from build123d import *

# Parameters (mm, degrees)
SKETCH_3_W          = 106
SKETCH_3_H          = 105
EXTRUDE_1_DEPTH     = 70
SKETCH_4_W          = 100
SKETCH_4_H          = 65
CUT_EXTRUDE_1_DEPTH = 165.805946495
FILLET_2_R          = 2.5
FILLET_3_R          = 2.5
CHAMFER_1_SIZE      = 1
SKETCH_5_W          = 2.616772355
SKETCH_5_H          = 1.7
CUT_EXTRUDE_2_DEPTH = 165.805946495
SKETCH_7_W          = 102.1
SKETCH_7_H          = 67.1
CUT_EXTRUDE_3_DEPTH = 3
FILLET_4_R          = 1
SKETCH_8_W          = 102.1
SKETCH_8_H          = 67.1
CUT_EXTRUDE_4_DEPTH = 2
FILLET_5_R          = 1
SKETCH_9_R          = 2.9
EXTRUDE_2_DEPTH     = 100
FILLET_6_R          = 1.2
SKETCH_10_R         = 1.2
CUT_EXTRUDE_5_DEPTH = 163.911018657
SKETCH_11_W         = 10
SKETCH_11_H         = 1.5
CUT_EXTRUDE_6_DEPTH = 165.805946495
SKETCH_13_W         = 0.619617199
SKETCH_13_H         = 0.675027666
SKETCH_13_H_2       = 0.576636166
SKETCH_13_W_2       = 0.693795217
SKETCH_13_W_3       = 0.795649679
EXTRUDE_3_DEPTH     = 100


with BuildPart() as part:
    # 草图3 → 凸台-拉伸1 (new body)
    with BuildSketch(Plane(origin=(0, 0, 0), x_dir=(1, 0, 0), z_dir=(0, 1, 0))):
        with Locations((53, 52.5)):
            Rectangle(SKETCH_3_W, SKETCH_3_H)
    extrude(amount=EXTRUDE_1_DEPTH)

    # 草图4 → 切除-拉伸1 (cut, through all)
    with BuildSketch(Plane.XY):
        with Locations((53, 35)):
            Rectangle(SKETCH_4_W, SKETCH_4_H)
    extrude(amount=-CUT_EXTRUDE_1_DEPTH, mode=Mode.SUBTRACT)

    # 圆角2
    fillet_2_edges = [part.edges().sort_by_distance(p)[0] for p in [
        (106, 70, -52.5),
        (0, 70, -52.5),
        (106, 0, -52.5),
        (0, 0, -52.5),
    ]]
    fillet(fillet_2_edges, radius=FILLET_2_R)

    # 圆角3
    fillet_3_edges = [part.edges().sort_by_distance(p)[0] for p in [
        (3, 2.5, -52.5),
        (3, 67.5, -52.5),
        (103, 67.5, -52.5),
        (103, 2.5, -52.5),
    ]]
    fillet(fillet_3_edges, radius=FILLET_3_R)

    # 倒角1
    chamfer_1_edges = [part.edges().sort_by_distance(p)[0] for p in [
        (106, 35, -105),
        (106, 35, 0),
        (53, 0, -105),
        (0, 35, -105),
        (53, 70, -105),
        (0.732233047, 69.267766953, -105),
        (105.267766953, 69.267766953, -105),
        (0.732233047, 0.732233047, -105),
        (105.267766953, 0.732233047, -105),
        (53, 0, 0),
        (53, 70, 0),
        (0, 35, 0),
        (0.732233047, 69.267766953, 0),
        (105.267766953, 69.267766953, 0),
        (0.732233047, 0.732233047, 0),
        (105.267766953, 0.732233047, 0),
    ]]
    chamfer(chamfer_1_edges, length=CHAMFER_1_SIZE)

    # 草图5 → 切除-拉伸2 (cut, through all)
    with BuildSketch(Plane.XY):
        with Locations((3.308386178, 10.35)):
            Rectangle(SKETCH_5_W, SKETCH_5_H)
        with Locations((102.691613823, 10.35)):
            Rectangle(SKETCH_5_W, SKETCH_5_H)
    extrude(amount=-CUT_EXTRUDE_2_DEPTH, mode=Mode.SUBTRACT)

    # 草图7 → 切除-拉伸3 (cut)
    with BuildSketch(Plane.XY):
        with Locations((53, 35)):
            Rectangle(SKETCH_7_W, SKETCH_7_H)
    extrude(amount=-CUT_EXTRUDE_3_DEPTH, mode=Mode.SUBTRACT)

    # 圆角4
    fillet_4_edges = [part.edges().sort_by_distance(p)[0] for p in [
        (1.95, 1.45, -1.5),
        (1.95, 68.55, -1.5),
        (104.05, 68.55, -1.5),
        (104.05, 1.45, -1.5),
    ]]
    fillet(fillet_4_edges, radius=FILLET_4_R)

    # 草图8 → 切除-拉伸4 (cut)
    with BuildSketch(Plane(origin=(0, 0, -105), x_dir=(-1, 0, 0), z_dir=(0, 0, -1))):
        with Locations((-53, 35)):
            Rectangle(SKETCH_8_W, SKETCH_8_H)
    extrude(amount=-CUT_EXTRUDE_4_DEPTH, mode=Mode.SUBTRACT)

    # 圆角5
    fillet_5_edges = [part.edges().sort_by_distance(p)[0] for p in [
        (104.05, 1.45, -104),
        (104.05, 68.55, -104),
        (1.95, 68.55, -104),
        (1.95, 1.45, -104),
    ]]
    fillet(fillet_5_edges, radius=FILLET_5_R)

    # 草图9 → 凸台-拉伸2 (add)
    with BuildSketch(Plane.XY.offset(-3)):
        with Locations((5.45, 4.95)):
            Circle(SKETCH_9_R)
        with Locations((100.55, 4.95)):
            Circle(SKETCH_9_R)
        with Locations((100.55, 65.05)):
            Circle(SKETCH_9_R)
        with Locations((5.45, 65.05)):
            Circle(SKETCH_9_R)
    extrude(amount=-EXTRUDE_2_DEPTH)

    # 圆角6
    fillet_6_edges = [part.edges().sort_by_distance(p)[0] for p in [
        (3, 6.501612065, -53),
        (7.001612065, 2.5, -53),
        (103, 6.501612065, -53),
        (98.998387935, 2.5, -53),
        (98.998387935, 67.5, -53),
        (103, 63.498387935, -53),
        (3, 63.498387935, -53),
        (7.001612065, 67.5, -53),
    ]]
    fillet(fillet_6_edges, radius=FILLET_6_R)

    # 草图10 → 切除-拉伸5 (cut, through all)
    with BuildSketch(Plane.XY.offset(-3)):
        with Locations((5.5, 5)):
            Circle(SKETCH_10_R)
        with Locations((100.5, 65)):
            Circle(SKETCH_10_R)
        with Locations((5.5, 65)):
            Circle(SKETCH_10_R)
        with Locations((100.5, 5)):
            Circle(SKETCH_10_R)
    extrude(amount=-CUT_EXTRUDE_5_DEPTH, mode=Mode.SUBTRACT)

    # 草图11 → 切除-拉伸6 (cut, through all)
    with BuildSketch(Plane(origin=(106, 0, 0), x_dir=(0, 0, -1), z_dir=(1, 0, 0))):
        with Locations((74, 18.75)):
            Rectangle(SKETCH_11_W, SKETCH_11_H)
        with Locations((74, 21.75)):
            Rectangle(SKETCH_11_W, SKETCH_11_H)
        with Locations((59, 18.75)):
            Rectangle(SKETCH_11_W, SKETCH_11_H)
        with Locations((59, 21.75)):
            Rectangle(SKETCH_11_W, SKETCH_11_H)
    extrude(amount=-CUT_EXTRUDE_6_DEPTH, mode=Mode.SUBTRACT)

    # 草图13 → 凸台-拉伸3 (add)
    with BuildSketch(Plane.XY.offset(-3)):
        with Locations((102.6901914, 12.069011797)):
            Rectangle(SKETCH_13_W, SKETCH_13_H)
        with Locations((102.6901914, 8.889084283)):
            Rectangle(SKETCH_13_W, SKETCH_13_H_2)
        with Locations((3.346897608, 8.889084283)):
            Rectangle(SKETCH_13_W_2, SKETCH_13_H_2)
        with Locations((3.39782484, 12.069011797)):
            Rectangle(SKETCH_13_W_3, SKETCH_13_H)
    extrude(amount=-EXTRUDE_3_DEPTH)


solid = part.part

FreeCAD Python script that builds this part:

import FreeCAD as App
import Part
import Sketcher

V = App.Vector


def edges_at(feature, points):
    """Names of the edges that pass closest to the given points."""
    edges = feature.Shape.Edges
    near = lambda p: min(range(len(edges)), key=lambda i: edges[i].distToShape(Part.Vertex(*p))[0])
    return sorted({f"Edge{near(p) + 1}" for p in points})


def add_polygon(sketch, points):
    """Adds a closed chain of lines whose ends are joined by coincident constraints."""
    first, n = sketch.GeometryCount, len(points)
    for a, b in zip(points, points[1:] + points[:1]):
        sketch.addGeometry(Part.LineSegment(App.Vector(*a, 0), App.Vector(*b, 0)), False)
    for i in range(n):
        sketch.addConstraint(Sketcher.Constraint("Coincident", first + i, 2, first + (i + 1) % n, 1))

doc = App.newDocument("Part")
body = doc.addObject("PartDesign::Body", "Body")

sketch1 = doc.addObject("Sketcher::SketchObject", "Sketch")
body.addObject(sketch1)
sketch1.AttachmentSupport = (doc.XZ_Plane, [""])
sketch1.MapMode = "FlatFace"
add_polygon(sketch1, [(0, -105), (0, 0), (106, 0), (106, -105)])
sketch1.addConstraint(Sketcher.Constraint("Vertical", 0))
sketch1.addConstraint(Sketcher.Constraint("Horizontal", 1))
sketch1.addConstraint(Sketcher.Constraint("Vertical", 2))
sketch1.addConstraint(Sketcher.Constraint("Horizontal", 3))
sketch1.addConstraint(Sketcher.Constraint("Coincident", 0, 2, -1, 1))
sketch1.addConstraint(Sketcher.Constraint("DistanceX", 1, 1, 1, 2, 106.0))
sketch1.addConstraint(Sketcher.Constraint("DistanceY", 0, 1, 0, 2, 105.0))
pad1 = doc.addObject("PartDesign::Pad", "Pad")
body.addObject(pad1)
pad1.Profile = sketch1
pad1.Length = 70
pad1.Reversed = True

sketch2 = doc.addObject("Sketcher::SketchObject", "Sketch001")
body.addObject(sketch2)
sketch2.AttachmentSupport = (doc.XY_Plane, [""])
sketch2.MapMode = "FlatFace"
add_polygon(sketch2, [(3, 68), (3, 2), (103, 2), (103, 68)])
sketch2.addConstraint(Sketcher.Constraint("Vertical", 0))
sketch2.addConstraint(Sketcher.Constraint("Horizontal", 1))
sketch2.addConstraint(Sketcher.Constraint("Vertical", 2))
sketch2.addConstraint(Sketcher.Constraint("Horizontal", 3))
sketch2.addConstraint(Sketcher.Constraint("DistanceX", 1, 1, 1, 2, 100.0))
sketch2.addConstraint(Sketcher.Constraint("DistanceY", 0, 2, 0, 1, 65.0))
sketch2.addConstraint(Sketcher.Constraint("DistanceX", -1, 1, 0, 2, 3.0))
sketch2.addConstraint(Sketcher.Constraint("DistanceY", -1, 1, 0, 2, 2.5))
pocket1 = doc.addObject("PartDesign::Pocket", "Pocket")
body.addObject(pocket1)
pocket1.Profile = sketch2
pocket1.Type = "ThroughAll"
doc.recompute()

fillet = doc.addObject("PartDesign::Fillet", "Fillet")
body.addObject(fillet)
fillet.Base = (pocket1, edges_at(pocket1, [
    (106, 70, -52.5),
    (0, 70, -52.5),
    (106, 0, -52.5),
    (0, 0, -52.5),
]))
fillet.Radius = 2.5
doc.recompute()

fillet2 = doc.addObject("PartDesign::Fillet", "Fillet001")
body.addObject(fillet2)
fillet2.Base = (fillet, edges_at(fillet, [
    (3, 2.5, -52.5),
    (3, 67.5, -52.5),
    (103, 67.5, -52.5),
    (103, 2.5, -52.5),
]))
fillet2.Radius = 2.5
doc.recompute()

chamfer = doc.addObject("PartDesign::Chamfer", "Chamfer")
body.addObject(chamfer)
chamfer.Base = (fillet2, edges_at(fillet2, [
    (106, 35, -105),
    (106, 35, 0),
    (53, 0, -105),
    (0, 35, -105),
    (53, 70, -105),
    (0.732, 69.268, -105),
    (105.268, 69.268, -105),
    (0.732, 0.732, -105),
    (105.268, 0.732, -105),
    (53, 0, 0),
    (53, 70, 0),
    (0, 35, 0),
    (0.732, 69.268, 0),
    (105.268, 69.268, 0),
    (0.732, 0.732, 0),
    (105.268, 0.732, 0),
]))
chamfer.Size = 1

sketch3 = doc.addObject("Sketcher::SketchObject", "Sketch002")
body.addObject(sketch3)
sketch3.AttachmentSupport = (doc.XY_Plane, [""])
sketch3.MapMode = "FlatFace"
add_polygon(sketch3, [(2, 11.2), (2, 9.5), (4.6, 9.5), (4.6, 11.2)])
add_polygon(sketch3, [(101.4, 11.2), (101.4, 9.5), (104, 9.5), (104, 11.2)])
sketch3.addConstraint(Sketcher.Constraint("Vertical", 0))
sketch3.addConstraint(Sketcher.Constraint("Horizontal", 1))
sketch3.addConstraint(Sketcher.Constraint("Vertical", 2))
sketch3.addConstraint(Sketcher.Constraint("Horizontal", 3))
sketch3.addConstraint(Sketcher.Constraint("Vertical", 4))
sketch3.addConstraint(Sketcher.Constraint("Horizontal", 5))
sketch3.addConstraint(Sketcher.Constraint("Vertical", 6))
sketch3.addConstraint(Sketcher.Constraint("Horizontal", 7))
sketch3.addConstraint(Sketcher.Constraint("Horizontal", 1, 2, 4, 2))
sketch3.addConstraint(Sketcher.Constraint("Horizontal", 3, 2, 6, 2))
sketch3.addConstraint(Sketcher.Constraint("Equal", 3, 5))
sketch3.addConstraint(Sketcher.Constraint("DistanceY", 0, 2, 0, 1, 1.7))
sketch3.addConstraint(Sketcher.Constraint("DistanceX", -1, 1, 0, 2, 2.0))
sketch3.addConstraint(Sketcher.Constraint("DistanceX", -1, 1, 5, 2, 104.0))
sketch3.addConstraint(Sketcher.Constraint("DistanceY", -1, 1, 0, 2, 9.5))
sketch3.addConstraint(Sketcher.Constraint("DistanceX", 1, 1, 1, 2, 2.616772))
pocket2 = doc.addObject("PartDesign::Pocket", "Pocket001")
body.addObject(pocket2)
pocket2.Profile = sketch3
pocket2.Type = "ThroughAll"

sketch4 = doc.addObject("Sketcher::SketchObject", "Sketch003")
body.addObject(sketch4)
sketch4.AttachmentSupport = (doc.XY_Plane, [""])
sketch4.MapMode = "FlatFace"
add_polygon(sketch4, [(2, 69), (2, 1), (104, 1), (104, 69)])
sketch4.addConstraint(Sketcher.Constraint("Vertical", 0))
sketch4.addConstraint(Sketcher.Constraint("Horizontal", 1))
sketch4.addConstraint(Sketcher.Constraint("Vertical", 2))
sketch4.addConstraint(Sketcher.Constraint("Horizontal", 3))
sketch4.addConstraint(Sketcher.Constraint("DistanceX", 1, 1, 1, 2, 102.1))
sketch4.addConstraint(Sketcher.Constraint("DistanceY", 0, 2, 0, 1, 67.1))
sketch4.addConstraint(Sketcher.Constraint("DistanceX", -1, 1, 0, 2, 1.95))
sketch4.addConstraint(Sketcher.Constraint("DistanceY", -1, 1, 0, 2, 1.45))
pocket3 = doc.addObject("PartDesign::Pocket", "Pocket002")
body.addObject(pocket3)
pocket3.Profile = sketch4
pocket3.Length = 3
doc.recompute()

fillet3 = doc.addObject("PartDesign::Fillet", "Fillet002")
body.addObject(fillet3)
fillet3.Base = (pocket3, edges_at(pocket3, [
    (1.95, 1.45, -1.5),
    (1.95, 68.55, -1.5),
    (104.05, 68.55, -1.5),
    (104.05, 1.45, -1.5),
]))
fillet3.Radius = 1

sketch5 = doc.addObject("Sketcher::SketchObject", "Sketch004")
body.addObject(sketch5)
sketch5.AttachmentSupport = (doc.XY_Plane, [""])
sketch5.MapMode = "FlatFace"
sketch5.AttachmentOffset = App.Placement(V(0, 0, -105), App.Rotation())
add_polygon(sketch5, [(104, 69), (104, 1), (2, 1), (2, 69)])
sketch5.addConstraint(Sketcher.Constraint("Vertical", 0))
sketch5.addConstraint(Sketcher.Constraint("Horizontal", 1))
sketch5.addConstraint(Sketcher.Constraint("Vertical", 2))
sketch5.addConstraint(Sketcher.Constraint("Horizontal", 3))
sketch5.addConstraint(Sketcher.Constraint("DistanceX", 1, 2, 1, 1, 102.1))
sketch5.addConstraint(Sketcher.Constraint("DistanceY", 0, 2, 0, 1, 67.1))
sketch5.addConstraint(Sketcher.Constraint("DistanceX", -1, 1, 0, 2, 104.05))
sketch5.addConstraint(Sketcher.Constraint("DistanceY", -1, 1, 0, 2, 1.45))
pocket4 = doc.addObject("PartDesign::Pocket", "Pocket003")
body.addObject(pocket4)
pocket4.Profile = sketch5
pocket4.Length = 2
pocket4.Reversed = True
doc.recompute()

fillet4 = doc.addObject("PartDesign::Fillet", "Fillet003")
body.addObject(fillet4)
fillet4.Base = (pocket4, edges_at(pocket4, [
    (104.05, 1.45, -104),
    (104.05, 68.55, -104),
    (1.95, 68.55, -104),
    (1.95, 1.45, -104),
]))
fillet4.Radius = 1

sketch6 = doc.addObject("Sketcher::SketchObject", "Sketch005")
body.addObject(sketch6)
sketch6.AttachmentSupport = (doc.XY_Plane, [""])
sketch6.MapMode = "FlatFace"
sketch6.AttachmentOffset = App.Placement(V(0, 0, -3), App.Rotation())
sketch6.addGeometry(Part.Circle(V(5.5, 5, 0), V(0, 0, 1), 2.9), False)
sketch6.addGeometry(Part.Circle(V(100.5, 5, 0), V(0, 0, 1), 2.9), False)
sketch6.addGeometry(Part.Circle(V(100.5, 65, 0), V(0, 0, 1), 2.9), False)
sketch6.addGeometry(Part.Circle(V(5.5, 65, 0), V(0, 0, 1), 2.9), False)
sketch6.addConstraint(Sketcher.Constraint("Equal", 0, 1))
sketch6.addConstraint(Sketcher.Constraint("Equal", 1, 2))
sketch6.addConstraint(Sketcher.Constraint("Equal", 2, 3))
sketch6.addConstraint(Sketcher.Constraint("Horizontal", 0, 3, 1, 3))
sketch6.addConstraint(Sketcher.Constraint("Horizontal", 2, 3, 3, 3))
sketch6.addConstraint(Sketcher.Constraint("Vertical", 1, 3, 2, 3))
sketch6.addConstraint(Sketcher.Constraint("Vertical", 0, 3, 3, 3))
sketch6.addConstraint(Sketcher.Constraint("Diameter", 0, 5.8))
sketch6.addConstraint(Sketcher.Constraint("DistanceX", 0, 3, 1, 3, 95.1))
sketch6.addConstraint(Sketcher.Constraint("DistanceY", 1, 3, 2, 3, 60.1))
sketch6.addConstraint(Sketcher.Constraint("DistanceX", -1, 1, 0, 3, 5.45))
sketch6.addConstraint(Sketcher.Constraint("DistanceY", -1, 1, 0, 3, 4.95))
pad2 = doc.addObject("PartDesign::Pad", "Pad001")
body.addObject(pad2)
pad2.Profile = sketch6
pad2.Length = 100
pad2.Reversed = True
doc.recompute()

fillet5 = doc.addObject("PartDesign::Fillet", "Fillet004")
body.addObject(fillet5)
fillet5.Base = (pad2, edges_at(pad2, [
    (3, 6.502, -53),
    (7.002, 2.5, -53),
    (103, 6.502, -53),
    (98.998, 2.5, -53),
    (98.998, 67.5, -53),
    (103, 63.498, -53),
    (3, 63.498, -53),
    (7.002, 67.5, -53),
]))
fillet5.Radius = 1.2

sketch7 = doc.addObject("Sketcher::SketchObject", "Sketch006")
body.addObject(sketch7)
sketch7.AttachmentSupport = (doc.XY_Plane, [""])
sketch7.MapMode = "FlatFace"
sketch7.AttachmentOffset = App.Placement(V(0, 0, -3), App.Rotation())
sketch7.addGeometry(Part.Circle(V(5.5, 5, 0), V(0, 0, 1), 1.2), False)
sketch7.addGeometry(Part.Circle(V(100.5, 65, 0), V(0, 0, 1), 1.2), False)
sketch7.addGeometry(Part.Circle(V(5.5, 65, 0), V(0, 0, 1), 1.2), False)
sketch7.addGeometry(Part.Circle(V(100.5, 5, 0), V(0, 0, 1), 1.2), False)
sketch7.addConstraint(Sketcher.Constraint("Equal", 0, 1))
sketch7.addConstraint(Sketcher.Constraint("Equal", 1, 2))
sketch7.addConstraint(Sketcher.Constraint("Equal", 2, 3))
sketch7.addConstraint(Sketcher.Constraint("Horizontal", 1, 3, 2, 3))
sketch7.addConstraint(Sketcher.Constraint("Horizontal", 0, 3, 3, 3))
sketch7.addConstraint(Sketcher.Constraint("Vertical", 0, 3, 2, 3))
sketch7.addConstraint(Sketcher.Constraint("Vertical", 1, 3, 3, 3))
sketch7.addConstraint(Sketcher.Constraint("Diameter", 0, 2.4))
sketch7.addConstraint(Sketcher.Constraint("DistanceY", -1, 1, 0, 3, 5.0))
sketch7.addConstraint(Sketcher.Constraint("DistanceY", -1, 1, 1, 3, 65.0))
sketch7.addConstraint(Sketcher.Constraint("DistanceX", 0, 3, 1, 3, 95.0))
sketch7.addConstraint(Sketcher.Constraint("DistanceX", -1, 1, 0, 3, 5.5))
pocket5 = doc.addObject("PartDesign::Pocket", "Pocket004")
body.addObject(pocket5)
pocket5.Profile = sketch7
pocket5.Type = "ThroughAll"

sketch8 = doc.addObject("Sketcher::SketchObject", "Sketch007")
body.addObject(sketch8)
sketch8.AttachmentSupport = (doc.YZ_Plane, [""])
sketch8.MapMode = "FlatFace"
sketch8.AttachmentOffset = App.Placement(V(0, 0, 106), App.Rotation())
add_polygon(sketch8, [(19.5, -69), (18, -69), (18, -79), (19.5, -79)])
add_polygon(sketch8, [(22.5, -69), (21, -69), (21, -79), (22.5, -79)])
add_polygon(sketch8, [(19.5, -54), (18, -54), (18, -64), (19.5, -64)])
add_polygon(sketch8, [(22.5, -54), (21, -54), (21, -64), (22.5, -64)])
sketch8.addConstraint(Sketcher.Constraint("Horizontal", 0))
sketch8.addConstraint(Sketcher.Constraint("Vertical", 1))
sketch8.addConstraint(Sketcher.Constraint("Horizontal", 2))
sketch8.addConstraint(Sketcher.Constraint("Vertical", 3))
sketch8.addConstraint(Sketcher.Constraint("Horizontal", 4))
sketch8.addConstraint(Sketcher.Constraint("Vertical", 5))
sketch8.addConstraint(Sketcher.Constraint("Horizontal", 6))
sketch8.addConstraint(Sketcher.Constraint("Vertical", 7))
sketch8.addConstraint(Sketcher.Constraint("Horizontal", 8))
sketch8.addConstraint(Sketcher.Constraint("Vertical", 9))
sketch8.addConstraint(Sketcher.Constraint("Horizontal", 10))
sketch8.addConstraint(Sketcher.Constraint("Vertical", 11))
sketch8.addConstraint(Sketcher.Constraint("Horizontal", 12))
sketch8.addConstraint(Sketcher.Constraint("Vertical", 13))
sketch8.addConstraint(Sketcher.Constraint("Horizontal", 14))
sketch8.addConstraint(Sketcher.Constraint("Vertical", 15))
sketch8.addConstraint(Sketcher.Constraint("Horizontal", 3, 2, 4, 2))
sketch8.addConstraint(Sketcher.Constraint("Horizontal", 2, 2, 5, 2))
sketch8.addConstraint(Sketcher.Constraint("Horizontal", 11, 2, 12, 2))
sketch8.addConstraint(Sketcher.Constraint("Horizontal", 10, 2, 13, 2))
sketch8.addConstraint(Sketcher.Constraint("Vertical", 1, 2, 8, 2))
sketch8.addConstraint(Sketcher.Constraint("Vertical", 3, 2, 10, 2))
sketch8.addConstraint(Sketcher.Constraint("Vertical", 5, 2, 12, 2))
sketch8.addConstraint(Sketcher.Constraint("Vertical", 7, 2, 14, 2))
sketch8.addConstraint(Sketcher.Constraint("Equal", 2, 4))
sketch8.addConstraint(Sketcher.Constraint("Equal", 7, 9))
sketch8.addConstraint(Sketcher.Constraint("DistanceY", 1, 2, 1, 1, 10.0))
sketch8.addConstraint(Sketcher.Constraint("DistanceX", 0, 2, 0, 1, 1.5))
sketch8.addConstraint(Sketcher.Constraint("DistanceX", -1, 1, 0, 2, 18.0))
sketch8.addConstraint(Sketcher.Constraint("DistanceY", 0, 2, -1, 1, 69.0))
sketch8.addConstraint(Sketcher.Constraint("DistanceX", -1, 1, 4, 2, 21.0))
sketch8.addConstraint(Sketcher.Constraint("DistanceY", 8, 2, -1, 1, 54.0))
pocket6 = doc.addObject("PartDesign::Pocket", "Pocket005")
body.addObject(pocket6)
pocket6.Profile = sketch8
pocket6.Type = "ThroughAll"

sketch9 = doc.addObject("Sketcher::SketchObject", "Sketch008")
body.addObject(sketch9)
sketch9.AttachmentSupport = (doc.XY_Plane, [""])
sketch9.MapMode = "FlatFace"
sketch9.AttachmentOffset = App.Placement(V(0, 0, -3), App.Rotation())
add_polygon(sketch9, [(102.4, 12.4), (102.4, 11.7), (103, 11.7), (103, 12.4)])
add_polygon(sketch9, [(102.4, 9.2), (102.4, 8.6), (103, 8.6), (103, 9.2)])
add_polygon(sketch9, [(3, 9.2), (3, 8.6), (3.7, 8.6), (3.7, 9.2)])
add_polygon(sketch9, [(3, 12.4), (3, 11.7), (3.8, 11.7), (3.8, 12.4)])
sketch9.addConstraint(Sketcher.Constraint("Vertical", 0))
sketch9.addConstraint(Sketcher.Constraint("Horizontal", 1))
sketch9.addConstraint(Sketcher.Constraint("Vertical", 2))
sketch9.addConstraint(Sketcher.Constraint("Horizontal", 3))
sketch9.addConstraint(Sketcher.Constraint("Vertical", 4))
sketch9.addConstraint(Sketcher.Constraint("Horizontal", 5))
sketch9.addConstraint(Sketcher.Constraint("Vertical", 6))
sketch9.addConstraint(Sketcher.Constraint("Horizontal", 7))
sketch9.addConstraint(Sketcher.Constraint("Vertical", 8))
sketch9.addConstraint(Sketcher.Constraint("Horizontal", 9))
sketch9.addConstraint(Sketcher.Constraint("Vertical", 10))
sketch9.addConstraint(Sketcher.Constraint("Horizontal", 11))
sketch9.addConstraint(Sketcher.Constraint("Vertical", 12))
sketch9.addConstraint(Sketcher.Constraint("Horizontal", 13))
sketch9.addConstraint(Sketcher.Constraint("Vertical", 14))
sketch9.addConstraint(Sketcher.Constraint("Horizontal", 15))
sketch9.addConstraint(Sketcher.Constraint("Horizontal", 5, 2, 8, 2))
sketch9.addConstraint(Sketcher.Constraint("Horizontal", 7, 2, 10, 2))
sketch9.addConstraint(Sketcher.Constraint("Horizontal", 1, 2, 12, 2))
sketch9.addConstraint(Sketcher.Constraint("Horizontal", 3, 2, 14, 2))
sketch9.addConstraint(Sketcher.Constraint("Vertical", 3, 2, 4, 2))
sketch9.addConstraint(Sketcher.Constraint("Vertical", 2, 2, 5, 2))
sketch9.addConstraint(Sketcher.Constraint("Vertical", 11, 2, 12, 2))
sketch9.addConstraint(Sketcher.Constraint("DistanceX", -1, 1, 1, 2, 103.0))
sketch9.addConstraint(Sketcher.Constraint("DistanceX", -1, 1, 8, 2, 3.0))
sketch9.addConstraint(Sketcher.Constraint("DistanceX", 13, 1, 13, 2, 0.79565))
sketch9.addConstraint(Sketcher.Constraint("DistanceX", 1, 1, 1, 2, 0.619617))
sketch9.addConstraint(Sketcher.Constraint("DistanceX", 9, 1, 9, 2, 0.693795))
sketch9.addConstraint(Sketcher.Constraint("DistanceY", 0, 2, 0, 1, 0.675028))
sketch9.addConstraint(Sketcher.Constraint("DistanceY", 4, 2, 4, 1, 0.576636))
sketch9.addConstraint(Sketcher.Constraint("DistanceY", 4, 2, 0, 2, 3.130732))
sketch9.addConstraint(Sketcher.Constraint("DistanceY", -1, 1, 0, 2, 11.731498))
pad3 = doc.addObject("PartDesign::Pad", "Pad002")
body.addObject(pad3)
pad3.Profile = sketch9
pad3.Length = 100
pad3.Reversed = True

doc.recompute()
